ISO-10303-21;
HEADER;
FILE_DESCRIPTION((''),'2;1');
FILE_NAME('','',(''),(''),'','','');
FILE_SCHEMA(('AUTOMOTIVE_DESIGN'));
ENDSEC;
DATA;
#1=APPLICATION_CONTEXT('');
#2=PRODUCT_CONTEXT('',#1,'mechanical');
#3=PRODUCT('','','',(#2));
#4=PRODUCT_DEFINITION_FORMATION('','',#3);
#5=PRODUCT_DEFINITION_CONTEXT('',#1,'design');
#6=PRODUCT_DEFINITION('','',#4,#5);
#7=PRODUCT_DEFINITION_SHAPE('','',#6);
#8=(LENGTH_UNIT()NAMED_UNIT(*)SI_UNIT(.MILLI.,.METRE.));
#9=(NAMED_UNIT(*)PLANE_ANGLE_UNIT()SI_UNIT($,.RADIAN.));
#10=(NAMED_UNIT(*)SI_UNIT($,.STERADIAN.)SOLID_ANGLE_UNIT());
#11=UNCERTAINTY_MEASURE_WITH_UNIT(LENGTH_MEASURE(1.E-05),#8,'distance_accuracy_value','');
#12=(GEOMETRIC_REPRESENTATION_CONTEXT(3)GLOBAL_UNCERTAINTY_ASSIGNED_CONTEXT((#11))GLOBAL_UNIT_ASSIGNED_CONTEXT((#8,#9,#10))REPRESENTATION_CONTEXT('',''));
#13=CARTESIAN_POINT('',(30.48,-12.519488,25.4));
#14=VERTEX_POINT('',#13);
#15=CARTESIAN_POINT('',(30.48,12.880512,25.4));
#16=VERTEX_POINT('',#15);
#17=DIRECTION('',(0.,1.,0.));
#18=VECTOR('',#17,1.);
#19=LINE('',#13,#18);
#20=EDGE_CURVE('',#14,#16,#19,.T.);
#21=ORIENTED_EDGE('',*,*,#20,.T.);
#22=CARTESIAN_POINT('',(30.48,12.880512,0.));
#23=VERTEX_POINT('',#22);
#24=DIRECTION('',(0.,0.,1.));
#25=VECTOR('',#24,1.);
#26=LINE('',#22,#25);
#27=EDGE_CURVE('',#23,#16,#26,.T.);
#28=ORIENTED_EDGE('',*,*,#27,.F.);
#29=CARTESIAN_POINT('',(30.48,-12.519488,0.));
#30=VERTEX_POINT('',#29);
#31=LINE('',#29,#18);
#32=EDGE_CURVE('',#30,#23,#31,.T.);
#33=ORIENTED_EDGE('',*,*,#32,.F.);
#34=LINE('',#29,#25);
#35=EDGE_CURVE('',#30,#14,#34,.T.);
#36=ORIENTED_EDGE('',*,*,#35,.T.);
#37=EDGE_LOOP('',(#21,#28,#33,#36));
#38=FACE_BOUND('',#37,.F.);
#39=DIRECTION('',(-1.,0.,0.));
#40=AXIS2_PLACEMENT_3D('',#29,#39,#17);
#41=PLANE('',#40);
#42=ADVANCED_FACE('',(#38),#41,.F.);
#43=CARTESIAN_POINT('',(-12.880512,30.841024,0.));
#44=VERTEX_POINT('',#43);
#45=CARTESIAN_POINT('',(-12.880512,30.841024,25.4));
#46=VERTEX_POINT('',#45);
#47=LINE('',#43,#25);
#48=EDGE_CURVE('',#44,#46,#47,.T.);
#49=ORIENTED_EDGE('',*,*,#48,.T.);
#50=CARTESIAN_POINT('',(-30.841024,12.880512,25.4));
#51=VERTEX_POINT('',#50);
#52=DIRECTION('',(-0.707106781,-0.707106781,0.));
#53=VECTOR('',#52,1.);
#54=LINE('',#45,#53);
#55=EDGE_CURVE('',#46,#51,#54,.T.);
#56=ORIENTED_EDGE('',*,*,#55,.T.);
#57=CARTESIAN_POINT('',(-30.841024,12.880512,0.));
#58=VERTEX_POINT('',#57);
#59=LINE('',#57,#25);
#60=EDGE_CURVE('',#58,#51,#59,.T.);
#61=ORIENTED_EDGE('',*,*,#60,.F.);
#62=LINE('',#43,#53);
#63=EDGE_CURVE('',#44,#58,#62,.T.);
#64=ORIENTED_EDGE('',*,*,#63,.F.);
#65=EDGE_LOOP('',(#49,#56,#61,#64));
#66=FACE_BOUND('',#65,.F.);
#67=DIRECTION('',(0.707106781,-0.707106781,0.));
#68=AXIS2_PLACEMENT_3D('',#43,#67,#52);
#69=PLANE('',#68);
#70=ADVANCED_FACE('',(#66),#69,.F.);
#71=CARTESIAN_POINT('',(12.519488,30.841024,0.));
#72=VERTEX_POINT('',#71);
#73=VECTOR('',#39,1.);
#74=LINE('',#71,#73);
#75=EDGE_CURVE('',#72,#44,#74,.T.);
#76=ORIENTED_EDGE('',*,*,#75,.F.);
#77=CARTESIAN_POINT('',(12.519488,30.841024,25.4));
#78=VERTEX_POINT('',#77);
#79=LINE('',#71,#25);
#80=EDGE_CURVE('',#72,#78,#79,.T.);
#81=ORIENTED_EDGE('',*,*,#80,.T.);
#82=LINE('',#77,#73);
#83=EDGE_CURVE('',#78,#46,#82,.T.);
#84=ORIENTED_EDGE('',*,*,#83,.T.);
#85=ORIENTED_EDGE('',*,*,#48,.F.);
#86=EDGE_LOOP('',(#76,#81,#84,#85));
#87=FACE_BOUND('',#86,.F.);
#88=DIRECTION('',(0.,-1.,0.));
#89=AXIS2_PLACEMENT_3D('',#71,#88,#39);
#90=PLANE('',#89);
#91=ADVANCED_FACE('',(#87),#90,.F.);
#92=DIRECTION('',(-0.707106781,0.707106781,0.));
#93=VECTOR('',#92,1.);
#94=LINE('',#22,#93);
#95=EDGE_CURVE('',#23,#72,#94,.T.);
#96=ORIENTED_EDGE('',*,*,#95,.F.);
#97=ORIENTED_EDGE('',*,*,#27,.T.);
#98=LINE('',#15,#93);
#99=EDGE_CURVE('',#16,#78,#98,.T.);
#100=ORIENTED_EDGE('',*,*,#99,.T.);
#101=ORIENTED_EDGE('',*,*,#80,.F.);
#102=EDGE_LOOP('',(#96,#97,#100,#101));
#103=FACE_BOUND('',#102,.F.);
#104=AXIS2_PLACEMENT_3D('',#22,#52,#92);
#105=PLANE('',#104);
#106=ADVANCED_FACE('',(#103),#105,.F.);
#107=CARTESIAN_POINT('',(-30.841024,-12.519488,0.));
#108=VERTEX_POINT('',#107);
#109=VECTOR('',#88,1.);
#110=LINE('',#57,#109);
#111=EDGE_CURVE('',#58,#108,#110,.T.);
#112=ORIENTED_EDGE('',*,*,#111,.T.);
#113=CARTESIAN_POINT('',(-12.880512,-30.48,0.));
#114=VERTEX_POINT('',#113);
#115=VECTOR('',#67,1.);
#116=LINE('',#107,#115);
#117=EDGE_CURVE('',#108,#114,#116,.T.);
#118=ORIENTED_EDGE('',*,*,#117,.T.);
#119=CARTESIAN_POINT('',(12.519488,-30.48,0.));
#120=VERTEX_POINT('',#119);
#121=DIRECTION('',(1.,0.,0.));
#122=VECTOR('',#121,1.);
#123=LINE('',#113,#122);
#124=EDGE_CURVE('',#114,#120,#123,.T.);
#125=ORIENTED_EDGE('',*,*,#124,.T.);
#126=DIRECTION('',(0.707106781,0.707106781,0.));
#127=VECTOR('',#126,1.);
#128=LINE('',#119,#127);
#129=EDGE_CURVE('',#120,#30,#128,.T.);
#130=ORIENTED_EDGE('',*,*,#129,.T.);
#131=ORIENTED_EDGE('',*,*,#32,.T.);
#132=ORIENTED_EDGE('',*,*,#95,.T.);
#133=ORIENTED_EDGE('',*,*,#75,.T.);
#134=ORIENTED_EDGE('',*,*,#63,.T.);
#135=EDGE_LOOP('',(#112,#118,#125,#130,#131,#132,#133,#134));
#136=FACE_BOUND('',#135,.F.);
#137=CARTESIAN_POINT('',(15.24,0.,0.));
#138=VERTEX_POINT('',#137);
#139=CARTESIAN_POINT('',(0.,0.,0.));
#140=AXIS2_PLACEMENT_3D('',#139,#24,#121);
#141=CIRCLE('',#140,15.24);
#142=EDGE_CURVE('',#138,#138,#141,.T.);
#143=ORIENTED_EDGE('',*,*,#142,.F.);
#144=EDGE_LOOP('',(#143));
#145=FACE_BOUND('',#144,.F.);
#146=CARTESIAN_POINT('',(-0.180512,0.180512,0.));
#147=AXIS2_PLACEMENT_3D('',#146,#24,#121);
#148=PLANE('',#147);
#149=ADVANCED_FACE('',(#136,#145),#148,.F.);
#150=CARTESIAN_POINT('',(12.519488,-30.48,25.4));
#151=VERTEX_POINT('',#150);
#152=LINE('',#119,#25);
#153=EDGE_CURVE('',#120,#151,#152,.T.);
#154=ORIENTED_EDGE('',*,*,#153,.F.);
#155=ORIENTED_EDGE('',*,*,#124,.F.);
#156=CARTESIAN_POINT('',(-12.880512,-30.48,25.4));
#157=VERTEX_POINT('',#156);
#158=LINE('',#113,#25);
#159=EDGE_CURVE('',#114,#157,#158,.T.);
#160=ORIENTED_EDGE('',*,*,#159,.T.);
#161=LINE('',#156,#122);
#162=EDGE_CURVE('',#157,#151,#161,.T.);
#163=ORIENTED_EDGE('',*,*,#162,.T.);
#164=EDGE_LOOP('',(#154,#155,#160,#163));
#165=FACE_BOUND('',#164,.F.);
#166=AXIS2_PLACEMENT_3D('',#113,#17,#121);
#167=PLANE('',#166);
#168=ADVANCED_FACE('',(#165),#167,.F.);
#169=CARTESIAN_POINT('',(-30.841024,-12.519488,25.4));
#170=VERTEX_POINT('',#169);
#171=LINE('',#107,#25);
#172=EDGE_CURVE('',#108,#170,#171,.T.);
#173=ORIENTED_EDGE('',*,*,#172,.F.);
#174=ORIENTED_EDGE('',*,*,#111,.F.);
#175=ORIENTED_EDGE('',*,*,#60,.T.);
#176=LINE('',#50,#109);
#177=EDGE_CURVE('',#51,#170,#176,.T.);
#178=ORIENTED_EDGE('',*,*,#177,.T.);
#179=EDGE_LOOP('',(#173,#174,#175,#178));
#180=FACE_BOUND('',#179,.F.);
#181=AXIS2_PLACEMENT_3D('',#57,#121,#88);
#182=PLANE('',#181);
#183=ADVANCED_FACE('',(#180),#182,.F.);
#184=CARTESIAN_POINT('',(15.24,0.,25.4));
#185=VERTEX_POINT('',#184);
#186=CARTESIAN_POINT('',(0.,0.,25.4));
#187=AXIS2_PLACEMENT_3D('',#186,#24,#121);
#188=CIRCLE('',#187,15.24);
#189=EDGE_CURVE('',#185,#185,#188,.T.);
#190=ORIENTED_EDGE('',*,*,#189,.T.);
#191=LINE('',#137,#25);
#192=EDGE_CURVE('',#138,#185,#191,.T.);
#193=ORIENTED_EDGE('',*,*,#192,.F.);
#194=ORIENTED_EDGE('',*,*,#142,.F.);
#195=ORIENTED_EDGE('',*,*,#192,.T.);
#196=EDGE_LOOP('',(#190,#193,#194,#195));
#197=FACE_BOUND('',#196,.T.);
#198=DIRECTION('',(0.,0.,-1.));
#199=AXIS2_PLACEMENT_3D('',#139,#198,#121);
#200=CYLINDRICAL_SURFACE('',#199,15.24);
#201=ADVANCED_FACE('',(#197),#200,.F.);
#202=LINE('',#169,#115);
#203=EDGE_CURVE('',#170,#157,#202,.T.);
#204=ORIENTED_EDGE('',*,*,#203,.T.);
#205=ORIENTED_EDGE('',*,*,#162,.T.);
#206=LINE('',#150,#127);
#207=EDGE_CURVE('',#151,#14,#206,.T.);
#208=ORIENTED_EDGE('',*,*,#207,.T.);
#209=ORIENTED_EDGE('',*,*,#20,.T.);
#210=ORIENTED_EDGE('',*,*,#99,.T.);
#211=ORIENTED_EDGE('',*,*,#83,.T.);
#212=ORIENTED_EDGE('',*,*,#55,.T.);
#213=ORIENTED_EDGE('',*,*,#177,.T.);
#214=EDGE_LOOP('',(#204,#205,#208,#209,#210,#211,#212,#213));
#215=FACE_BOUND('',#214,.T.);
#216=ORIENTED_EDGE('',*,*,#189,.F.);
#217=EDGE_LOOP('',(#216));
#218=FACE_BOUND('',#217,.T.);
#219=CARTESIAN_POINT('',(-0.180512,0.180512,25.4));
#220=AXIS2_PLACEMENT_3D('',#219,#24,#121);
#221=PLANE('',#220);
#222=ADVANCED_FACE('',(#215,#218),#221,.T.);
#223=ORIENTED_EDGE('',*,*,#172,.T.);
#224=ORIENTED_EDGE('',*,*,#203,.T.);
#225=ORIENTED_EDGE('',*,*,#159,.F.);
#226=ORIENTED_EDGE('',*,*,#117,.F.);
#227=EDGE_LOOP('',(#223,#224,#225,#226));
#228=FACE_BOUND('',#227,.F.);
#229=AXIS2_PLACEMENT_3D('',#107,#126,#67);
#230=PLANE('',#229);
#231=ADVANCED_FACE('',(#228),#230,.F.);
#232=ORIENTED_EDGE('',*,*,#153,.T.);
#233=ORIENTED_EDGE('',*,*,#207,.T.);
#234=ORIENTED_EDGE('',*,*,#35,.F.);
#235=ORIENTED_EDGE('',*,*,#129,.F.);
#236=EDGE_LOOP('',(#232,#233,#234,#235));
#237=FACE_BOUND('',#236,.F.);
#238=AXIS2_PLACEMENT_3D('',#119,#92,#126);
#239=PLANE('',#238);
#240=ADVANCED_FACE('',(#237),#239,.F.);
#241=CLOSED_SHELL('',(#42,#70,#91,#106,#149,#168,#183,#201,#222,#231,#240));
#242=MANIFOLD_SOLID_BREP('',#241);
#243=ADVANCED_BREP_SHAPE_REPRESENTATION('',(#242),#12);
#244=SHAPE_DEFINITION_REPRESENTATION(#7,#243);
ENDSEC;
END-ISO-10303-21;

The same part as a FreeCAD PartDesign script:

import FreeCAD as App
import Part
import Sketcher
Q = App.Units.Quantity


def add_polygon(sketch, points):
    """Adds a closed chain of lines whose ends are joined by coincident constraints."""
    first, n = sketch.GeometryCount, len(points)
    for a, b in zip(points, points[1:] + points[:1]):
        sketch.addGeometry(Part.LineSegment(App.Vector(*a, 0), App.Vector(*b, 0)), False)
    for i in range(n):
        sketch.addConstraint(Sketcher.Constraint("Coincident", first + i, 2, first + (i + 1) % n, 1))

doc = App.newDocument("Part")
body = doc.addObject("PartDesign::Body", "Body")

# Sketch on XY plane
sketch1 = body.newObject("Sketcher::SketchObject", "Sketch")
sketch1.AttachmentSupport = (doc.getObject("XY_Plane"), [""])
sketch1.MapMode = "FlatFace"
add_polygon(sketch1, [(13, 31), (-13, 31), (-31, 13), (-31, -13), (-13, -30), (13, -30), (30, -13), (30, 13)])  # lines 0-7
sketch1.addGeometry(Part.Circle(App.Vector(0, 0, 0), App.Vector(0, 0, 1), 15), False)  # 8
sketch1.addConstraint(Sketcher.Constraint("Horizontal", 0))
sketch1.addConstraint(Sketcher.Constraint("Vertical", 2))
sketch1.addConstraint(Sketcher.Constraint("Horizontal", 4))
sketch1.addConstraint(Sketcher.Constraint("Vertical", 6))
sketch1.addConstraint(Sketcher.Constraint("Coincident", 8, 3, -1, 1))
sketch1.addConstraint(Sketcher.Constraint("Perpendicular", 1, 3))
sketch1.addConstraint(Sketcher.Constraint("Perpendicular", 3, 5))
sketch1.addConstraint(Sketcher.Constraint("Perpendicular", 5, 7))
sketch1.addConstraint(Sketcher.Constraint("Horizontal", 2, 2, 5, 2))
sketch1.addConstraint(Sketcher.Constraint("Horizontal", 1, 2, 6, 2))
sketch1.addConstraint(Sketcher.Constraint("Vertical", 0, 2, 3, 2))
sketch1.addConstraint(Sketcher.Constraint("Vertical", 4, 2, 7, 2))
sketch1.addConstraint(Sketcher.Constraint("Equal", 4, 2))
sketch1.addConstraint(Sketcher.Constraint("Diameter", 8, Q("1.2 in")))
sketch1.addConstraint(Sketcher.Constraint("DistanceX", 0, 2, 0, 1, Q("1 in")))
sketch1.addConstraint(Sketcher.Constraint("Distance", 1, Q("1 in")))
sketch1.addConstraint(Sketcher.Constraint("DistanceY", 3, 2, -1, 1, Q("1.2 in")))
sketch1.addConstraint(Sketcher.Constraint("DistanceX", -1, 1, 5, 2, Q("1.2 in")))
pad1 = body.newObject("PartDesign::Pad", "Pad")
pad1.Profile = sketch1
pad1.Length = Q("1 in")

doc.recompute()
